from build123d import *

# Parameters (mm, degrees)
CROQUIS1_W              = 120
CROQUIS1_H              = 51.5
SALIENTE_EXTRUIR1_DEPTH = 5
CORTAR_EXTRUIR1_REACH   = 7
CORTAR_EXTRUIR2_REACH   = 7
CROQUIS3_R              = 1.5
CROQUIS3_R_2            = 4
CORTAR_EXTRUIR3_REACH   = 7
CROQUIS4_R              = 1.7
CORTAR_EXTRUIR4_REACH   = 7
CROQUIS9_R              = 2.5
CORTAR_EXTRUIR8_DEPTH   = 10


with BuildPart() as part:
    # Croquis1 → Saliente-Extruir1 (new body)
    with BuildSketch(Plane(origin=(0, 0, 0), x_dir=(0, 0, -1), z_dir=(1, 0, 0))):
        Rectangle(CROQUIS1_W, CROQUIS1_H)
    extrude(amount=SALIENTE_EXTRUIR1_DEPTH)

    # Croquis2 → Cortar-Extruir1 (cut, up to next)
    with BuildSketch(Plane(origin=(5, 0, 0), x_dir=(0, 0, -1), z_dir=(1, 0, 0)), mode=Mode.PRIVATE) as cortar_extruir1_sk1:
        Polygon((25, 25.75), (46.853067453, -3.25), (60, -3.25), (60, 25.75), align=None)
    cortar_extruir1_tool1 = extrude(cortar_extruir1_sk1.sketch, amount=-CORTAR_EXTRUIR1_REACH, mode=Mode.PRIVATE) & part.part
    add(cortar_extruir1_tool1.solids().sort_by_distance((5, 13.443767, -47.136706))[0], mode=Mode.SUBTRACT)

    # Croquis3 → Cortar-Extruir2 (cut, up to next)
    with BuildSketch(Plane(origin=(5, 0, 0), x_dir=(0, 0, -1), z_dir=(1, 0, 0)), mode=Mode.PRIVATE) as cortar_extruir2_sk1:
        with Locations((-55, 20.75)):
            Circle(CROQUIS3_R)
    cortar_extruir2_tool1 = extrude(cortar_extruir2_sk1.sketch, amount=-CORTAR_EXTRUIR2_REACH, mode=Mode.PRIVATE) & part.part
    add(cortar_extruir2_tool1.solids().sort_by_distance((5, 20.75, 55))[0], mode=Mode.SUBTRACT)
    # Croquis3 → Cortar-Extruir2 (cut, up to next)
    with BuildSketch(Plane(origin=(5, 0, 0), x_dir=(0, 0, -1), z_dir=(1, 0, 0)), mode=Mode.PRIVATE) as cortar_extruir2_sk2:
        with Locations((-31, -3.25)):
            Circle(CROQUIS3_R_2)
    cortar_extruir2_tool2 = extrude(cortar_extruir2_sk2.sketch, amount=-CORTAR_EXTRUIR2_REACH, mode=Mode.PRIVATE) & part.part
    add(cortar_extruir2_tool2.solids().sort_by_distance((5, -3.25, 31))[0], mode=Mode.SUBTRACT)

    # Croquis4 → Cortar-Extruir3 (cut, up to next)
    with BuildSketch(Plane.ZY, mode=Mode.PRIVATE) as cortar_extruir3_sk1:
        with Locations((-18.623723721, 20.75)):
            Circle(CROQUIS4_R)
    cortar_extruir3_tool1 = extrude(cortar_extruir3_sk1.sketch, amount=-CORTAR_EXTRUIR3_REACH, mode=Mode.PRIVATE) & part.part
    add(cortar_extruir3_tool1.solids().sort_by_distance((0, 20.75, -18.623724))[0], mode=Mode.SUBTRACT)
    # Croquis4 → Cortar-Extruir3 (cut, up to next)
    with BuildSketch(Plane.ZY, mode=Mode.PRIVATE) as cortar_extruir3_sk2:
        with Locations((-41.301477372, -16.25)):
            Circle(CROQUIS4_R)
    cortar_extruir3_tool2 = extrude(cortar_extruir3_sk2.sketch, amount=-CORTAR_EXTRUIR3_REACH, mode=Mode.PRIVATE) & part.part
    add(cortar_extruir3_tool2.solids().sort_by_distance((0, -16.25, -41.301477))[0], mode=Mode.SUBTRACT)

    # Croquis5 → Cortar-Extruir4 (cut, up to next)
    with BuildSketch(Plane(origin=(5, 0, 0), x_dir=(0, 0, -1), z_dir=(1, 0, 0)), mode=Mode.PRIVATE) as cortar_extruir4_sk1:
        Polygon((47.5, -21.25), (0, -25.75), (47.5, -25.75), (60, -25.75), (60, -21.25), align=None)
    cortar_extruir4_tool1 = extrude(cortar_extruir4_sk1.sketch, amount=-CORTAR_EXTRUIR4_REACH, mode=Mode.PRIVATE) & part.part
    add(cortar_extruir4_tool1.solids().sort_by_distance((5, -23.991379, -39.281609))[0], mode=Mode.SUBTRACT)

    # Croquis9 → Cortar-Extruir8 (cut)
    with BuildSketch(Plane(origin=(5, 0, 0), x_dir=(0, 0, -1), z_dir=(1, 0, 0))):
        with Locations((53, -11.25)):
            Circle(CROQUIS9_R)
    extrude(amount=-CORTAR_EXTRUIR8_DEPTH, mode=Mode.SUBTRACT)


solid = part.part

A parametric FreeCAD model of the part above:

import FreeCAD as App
import Part
import Sketcher

V = App.Vector
Q = App.Units.Quantity


def add_polygon(sketch, points):
    """Adds a closed chain of lines whose ends are joined by coincident constraints."""
    first, n = sketch.GeometryCount, len(points)
    for a, b in zip(points, points[1:] + points[:1]):
        sketch.addGeometry(Part.LineSegment(App.Vector(*a, 0), App.Vector(*b, 0)), False)
    for i in range(n):
        sketch.addConstraint(Sketcher.Constraint("Coincident", first + i, 2, first + (i + 1) % n, 1))

doc = App.newDocument("Part")
body = doc.addObject("PartDesign::Body", "Body")

# Sketch on YZ plane
sketch1 = doc.addObject("Sketcher::SketchObject", "Sketch")
body.addObject(sketch1)
sketch1.AttachmentSupport = (doc.YZ_Plane, [""])
sketch1.MapMode = "FlatFace"
add_polygon(sketch1, [(26, 60), (-26, 60), (-26, -60), (26, -60)])  # lines 0-3
sketch1.addConstraint(Sketcher.Constraint("Horizontal", 0))
sketch1.addConstraint(Sketcher.Constraint("Vertical", 1))
sketch1.addConstraint(Sketcher.Constraint("Horizontal", 2))
sketch1.addConstraint(Sketcher.Constraint("Vertical", 3))
sketch1.addConstraint(Sketcher.Constraint("Symmetric", 0, 2, 2, 2, -1, 1))
sketch1.addConstraint(Sketcher.Constraint("DistanceY", 1, 2, 1, 1, 120.0))
sketch1.addConstraint(Sketcher.Constraint("DistanceX", 0, 2, 0, 1, 51.5))
pad1 = doc.addObject("PartDesign::Pad", "Pad")
body.addObject(pad1)
pad1.Profile = sketch1
pad1.Length = 5

# Sketch on YZ plane
sketch2 = doc.addObject("Sketcher::SketchObject", "Sketch001")
body.addObject(sketch2)
sketch2.AttachmentSupport = (doc.YZ_Plane, [""])
sketch2.MapMode = "FlatFace"
sketch2.AttachmentOffset = App.Placement(V(0, 0, 5), App.Rotation())
add_polygon(sketch2, [(26, -25), (-3, -47), (-3, -60), (26, -60)])  # lines 0-3
sketch2.addConstraint(Sketcher.Constraint("Vertical", 1))
sketch2.addConstraint(Sketcher.Constraint("Horizontal", 2))
sketch2.addConstraint(Sketcher.Constraint("Vertical", 3))
sketch2.addConstraint(Sketcher.Constraint("DistanceX", 2, 1, 2, 2, 29.0))
sketch2.addConstraint(Sketcher.Constraint("DistanceY", 3, 1, 3, 2, 35.0))
sketch2.addConstraint(Sketcher.Constraint("Angle", 0, Q("-143 deg")))
sketch2.addConstraint(Sketcher.Constraint("DistanceY", 1, 2, -1, 1, 60.0))
sketch2.addConstraint(Sketcher.Constraint("DistanceX", 0, 2, -1, 1, 3.25))
pocket1 = doc.addObject("PartDesign::Pocket", "Pocket")
body.addObject(pocket1)
pocket1.Profile = sketch2
pocket1.Type = "UpToFirst"

# Sketch on YZ plane
sketch3 = doc.addObject("Sketcher::SketchObject", "Sketch002")
body.addObject(sketch3)
sketch3.AttachmentSupport = (doc.YZ_Plane, [""])
sketch3.MapMode = "FlatFace"
sketch3.AttachmentOffset = App.Placement(V(0, 0, 5), App.Rotation())
sketch3.addGeometry(Part.Circle(V(20.8, 55, 0), V(0, 0, 1), 1.5), False)
sketch3.addConstraint(Sketcher.Constraint("Diameter", 0, 3.0))
sketch3.addConstraint(Sketcher.Constraint("DistanceY", -1, 1, 0, 3, 55.0))
sketch3.addConstraint(Sketcher.Constraint("DistanceX", -1, 1, 0, 3, 20.75))
pocket2 = doc.addObject("PartDesign::Pocket", "Pocket001")
body.addObject(pocket2)
pocket2.Profile = sketch3
pocket2.Type = "UpToFirst"

# Sketch on YZ plane
sketch4 = doc.addObject("Sketcher::SketchObject", "Sketch003")
body.addObject(sketch4)
sketch4.AttachmentSupport = (doc.YZ_Plane, [""])
sketch4.MapMode = "FlatFace"
sketch4.AttachmentOffset = App.Placement(V(0, 0, 5), App.Rotation())
sketch4.addGeometry(Part.Circle(V(-3.2, 31, 0), V(0, 0, 1), 4), False)
sketch4.addConstraint(Sketcher.Constraint("Diameter", 0, 8.0))
sketch4.addConstraint(Sketcher.Constraint("DistanceY", -1, 1, 0, 3, 31.0))
sketch4.addConstraint(Sketcher.Constraint("DistanceX", 0, 3, -1, 1, 3.25))
pocket3 = doc.addObject("PartDesign::Pocket", "Pocket002")
body.addObject(pocket3)
pocket3.Profile = sketch4
pocket3.Type = "UpToFirst"

# Sketch on YZ plane
sketch5 = doc.addObject("Sketcher::SketchObject", "Sketch004")
body.addObject(sketch5)
sketch5.AttachmentSupport = (doc.YZ_Plane, [""])
sketch5.MapMode = "FlatFace"
sketch5.addGeometry(Part.Circle(V(20.8, -18.6, 0), V(0, 0, 1), 1.7), False)
sketch5.addConstraint(Sketcher.Constraint("Diameter", 0, 3.4))
sketch5.addConstraint(Sketcher.Constraint("DistanceX", -1, 1, 0, 3, 20.75))
sketch5.addConstraint(Sketcher.Constraint("DistanceY", 0, 3, -1, 1, 18.623724))
pocket4 = doc.addObject("PartDesign::Pocket", "Pocket003")
body.addObject(pocket4)
pocket4.Profile = sketch5
pocket4.Type = "UpToFirst"
pocket4.Reversed = True

# Sketch on YZ plane
sketch6 = doc.addObject("Sketcher::SketchObject", "Sketch005")
body.addObject(sketch6)
sketch6.AttachmentSupport = (doc.YZ_Plane, [""])
sketch6.MapMode = "FlatFace"
sketch6.addGeometry(Part.Circle(V(-16.2, -41.3, 0), V(0, 0, 1), 1.7), False)
sketch6.addConstraint(Sketcher.Constraint("Diameter", 0, 3.4))
sketch6.addConstraint(Sketcher.Constraint("DistanceX", 0, 3, -1, 1, 16.25))
sketch6.addConstraint(Sketcher.Constraint("DistanceY", 0, 3, -1, 1, 41.301477))
pocket5 = doc.addObject("PartDesign::Pocket", "Pocket004")
body.addObject(pocket5)
pocket5.Profile = sketch6
pocket5.Type = "UpToFirst"
pocket5.Reversed = True

# Sketch on YZ plane
sketch7 = doc.addObject("Sketcher::SketchObject", "Sketch006")
body.addObject(sketch7)
sketch7.AttachmentSupport = (doc.YZ_Plane, [""])
sketch7.MapMode = "FlatFace"
sketch7.AttachmentOffset = App.Placement(V(0, 0, 5), App.Rotation())
add_polygon(sketch7, [(-21.2, -47.5), (-25.8, 0), (-25.8, -60), (-21.2, -60)])  # lines 0-3
sketch7.addConstraint(Sketcher.Constraint("Vertical", 1))
sketch7.addConstraint(Sketcher.Constraint("Horizontal", 2))
sketch7.addConstraint(Sketcher.Constraint("Vertical", 3))
sketch7.addConstraint(Sketcher.Constraint("PointOnObject", 0, 2, -1))
sketch7.addConstraint(Sketcher.Constraint("DistanceY", 1, 2, 1, 1, 60.0))
sketch7.addConstraint(Sketcher.Constraint("DistanceX", 2, 1, 2, 2, 4.5))
sketch7.addConstraint(Sketcher.Constraint("DistanceY", 3, 1, 3, 2, 12.5))
sketch7.addConstraint(Sketcher.Constraint("DistanceX", 0, 2, -1, 1, 25.75))
pocket6 = doc.addObject("PartDesign::Pocket", "Pocket005")
body.addObject(pocket6)
pocket6.Profile = sketch7
pocket6.Type = "UpToFirst"

# Sketch on YZ plane
sketch8 = doc.addObject("Sketcher::SketchObject", "Sketch007")
body.addObject(sketch8)
sketch8.AttachmentSupport = (doc.YZ_Plane, [""])
sketch8.MapMode = "FlatFace"
sketch8.AttachmentOffset = App.Placement(V(0, 0, 5), App.Rotation())
sketch8.addGeometry(Part.Circle(V(-11.2, -53, 0), V(0, 0, 1), 2.5), False)
sketch8.addConstraint(Sketcher.Constraint("Diameter", 0, 5.0))
sketch8.addConstraint(Sketcher.Constraint("DistanceY", 0, 3, -1, 1, 53.0))
sketch8.addConstraint(Sketcher.Constraint("DistanceX", 0, 3, -1, 1, 11.25))
pocket7 = doc.addObject("PartDesign::Pocket", "Pocket006")
body.addObject(pocket7)
pocket7.Profile = sketch8
pocket7.Length = 10

doc.recompute()
